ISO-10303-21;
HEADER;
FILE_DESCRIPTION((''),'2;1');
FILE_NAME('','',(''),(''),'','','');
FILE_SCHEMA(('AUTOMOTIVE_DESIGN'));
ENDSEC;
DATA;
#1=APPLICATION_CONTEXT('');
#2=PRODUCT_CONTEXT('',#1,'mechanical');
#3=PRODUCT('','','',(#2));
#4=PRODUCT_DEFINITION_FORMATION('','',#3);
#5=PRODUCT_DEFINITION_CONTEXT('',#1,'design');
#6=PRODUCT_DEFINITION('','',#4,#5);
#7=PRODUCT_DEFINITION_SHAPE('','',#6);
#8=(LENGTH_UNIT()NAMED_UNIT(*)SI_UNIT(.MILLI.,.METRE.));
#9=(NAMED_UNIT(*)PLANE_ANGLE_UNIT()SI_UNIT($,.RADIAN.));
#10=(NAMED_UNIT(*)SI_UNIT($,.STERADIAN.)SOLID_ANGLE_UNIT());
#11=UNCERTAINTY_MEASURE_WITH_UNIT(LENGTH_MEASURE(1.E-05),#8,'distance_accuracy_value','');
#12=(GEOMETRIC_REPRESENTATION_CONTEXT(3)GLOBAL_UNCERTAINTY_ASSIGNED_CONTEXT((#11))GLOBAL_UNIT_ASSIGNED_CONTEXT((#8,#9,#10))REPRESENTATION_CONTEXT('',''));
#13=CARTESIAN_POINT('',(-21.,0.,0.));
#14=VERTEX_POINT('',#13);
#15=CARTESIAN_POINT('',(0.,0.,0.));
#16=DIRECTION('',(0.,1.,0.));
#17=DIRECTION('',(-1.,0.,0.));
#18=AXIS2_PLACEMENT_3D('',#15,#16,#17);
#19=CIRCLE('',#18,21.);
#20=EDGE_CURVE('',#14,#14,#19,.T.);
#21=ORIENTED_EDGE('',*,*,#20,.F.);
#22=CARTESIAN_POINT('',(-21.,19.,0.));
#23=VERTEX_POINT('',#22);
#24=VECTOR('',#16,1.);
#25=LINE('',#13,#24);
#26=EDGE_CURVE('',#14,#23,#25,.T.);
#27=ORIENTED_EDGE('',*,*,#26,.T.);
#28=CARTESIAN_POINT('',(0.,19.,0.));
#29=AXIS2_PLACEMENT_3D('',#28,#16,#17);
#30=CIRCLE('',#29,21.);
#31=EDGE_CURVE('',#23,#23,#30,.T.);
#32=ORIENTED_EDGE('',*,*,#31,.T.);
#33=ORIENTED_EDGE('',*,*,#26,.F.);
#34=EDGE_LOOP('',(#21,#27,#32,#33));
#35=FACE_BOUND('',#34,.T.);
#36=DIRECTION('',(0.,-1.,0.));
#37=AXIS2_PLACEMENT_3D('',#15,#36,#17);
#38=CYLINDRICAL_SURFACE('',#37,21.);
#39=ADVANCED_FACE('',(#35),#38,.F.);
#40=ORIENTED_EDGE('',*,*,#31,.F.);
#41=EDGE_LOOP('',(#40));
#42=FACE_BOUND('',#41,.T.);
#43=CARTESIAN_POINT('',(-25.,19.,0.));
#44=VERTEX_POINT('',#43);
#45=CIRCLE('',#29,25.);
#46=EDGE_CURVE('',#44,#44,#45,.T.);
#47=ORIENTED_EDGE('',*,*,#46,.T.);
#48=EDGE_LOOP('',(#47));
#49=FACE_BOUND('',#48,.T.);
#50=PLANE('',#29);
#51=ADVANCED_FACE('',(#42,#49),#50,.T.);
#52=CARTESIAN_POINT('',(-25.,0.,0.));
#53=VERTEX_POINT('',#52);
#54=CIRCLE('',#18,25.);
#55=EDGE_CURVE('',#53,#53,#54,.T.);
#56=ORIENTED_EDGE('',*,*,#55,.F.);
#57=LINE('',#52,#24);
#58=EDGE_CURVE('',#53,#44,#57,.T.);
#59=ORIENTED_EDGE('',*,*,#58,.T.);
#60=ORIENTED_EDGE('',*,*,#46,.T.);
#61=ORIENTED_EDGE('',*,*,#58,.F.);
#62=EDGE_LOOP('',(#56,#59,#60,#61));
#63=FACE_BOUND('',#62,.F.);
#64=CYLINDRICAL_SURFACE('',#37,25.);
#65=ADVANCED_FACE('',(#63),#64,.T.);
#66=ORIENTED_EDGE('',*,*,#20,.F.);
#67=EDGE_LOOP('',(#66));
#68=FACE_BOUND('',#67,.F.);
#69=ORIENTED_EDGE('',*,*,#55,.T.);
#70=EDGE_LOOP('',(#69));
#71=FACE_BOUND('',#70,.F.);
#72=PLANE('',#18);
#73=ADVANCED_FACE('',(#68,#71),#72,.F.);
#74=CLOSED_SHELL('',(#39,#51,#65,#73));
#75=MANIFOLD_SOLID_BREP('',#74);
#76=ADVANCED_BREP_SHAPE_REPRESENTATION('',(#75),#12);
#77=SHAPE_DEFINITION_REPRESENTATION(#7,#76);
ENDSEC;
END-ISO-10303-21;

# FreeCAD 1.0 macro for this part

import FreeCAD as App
import Part
import Sketcher

doc = App.newDocument("Part")
body = doc.addObject("PartDesign::Body", "Body")

# Sketch on XZ plane
sketch1 = body.newObject("Sketcher::SketchObject", "Sketch")
sketch1.AttachmentSupport = (doc.getObject("XZ_Plane"), [""])
sketch1.MapMode = "FlatFace"
sketch1.addGeometry(Part.Circle(App.Vector(0, 0, 0), App.Vector(0, 0, 1), 25), False)
sketch1.addGeometry(Part.Circle(App.Vector(0, 0, 0), App.Vector(0, 0, 1), 21), False)
sketch1.addConstraint(Sketcher.Constraint("Coincident", 0, 3, -1, 1))
sketch1.addConstraint(Sketcher.Constraint("Coincident", 1, 3, -1, 1))
sketch1.addConstraint(Sketcher.Constraint("Diameter", 0, 50.0))
sketch1.addConstraint(Sketcher.Constraint("Diameter", 1, 42.0))
pad1 = body.newObject("PartDesign::Pad", "Pad")
pad1.Profile = sketch1
pad1.Length = 19
pad1.Reversed = True

doc.recompute()
